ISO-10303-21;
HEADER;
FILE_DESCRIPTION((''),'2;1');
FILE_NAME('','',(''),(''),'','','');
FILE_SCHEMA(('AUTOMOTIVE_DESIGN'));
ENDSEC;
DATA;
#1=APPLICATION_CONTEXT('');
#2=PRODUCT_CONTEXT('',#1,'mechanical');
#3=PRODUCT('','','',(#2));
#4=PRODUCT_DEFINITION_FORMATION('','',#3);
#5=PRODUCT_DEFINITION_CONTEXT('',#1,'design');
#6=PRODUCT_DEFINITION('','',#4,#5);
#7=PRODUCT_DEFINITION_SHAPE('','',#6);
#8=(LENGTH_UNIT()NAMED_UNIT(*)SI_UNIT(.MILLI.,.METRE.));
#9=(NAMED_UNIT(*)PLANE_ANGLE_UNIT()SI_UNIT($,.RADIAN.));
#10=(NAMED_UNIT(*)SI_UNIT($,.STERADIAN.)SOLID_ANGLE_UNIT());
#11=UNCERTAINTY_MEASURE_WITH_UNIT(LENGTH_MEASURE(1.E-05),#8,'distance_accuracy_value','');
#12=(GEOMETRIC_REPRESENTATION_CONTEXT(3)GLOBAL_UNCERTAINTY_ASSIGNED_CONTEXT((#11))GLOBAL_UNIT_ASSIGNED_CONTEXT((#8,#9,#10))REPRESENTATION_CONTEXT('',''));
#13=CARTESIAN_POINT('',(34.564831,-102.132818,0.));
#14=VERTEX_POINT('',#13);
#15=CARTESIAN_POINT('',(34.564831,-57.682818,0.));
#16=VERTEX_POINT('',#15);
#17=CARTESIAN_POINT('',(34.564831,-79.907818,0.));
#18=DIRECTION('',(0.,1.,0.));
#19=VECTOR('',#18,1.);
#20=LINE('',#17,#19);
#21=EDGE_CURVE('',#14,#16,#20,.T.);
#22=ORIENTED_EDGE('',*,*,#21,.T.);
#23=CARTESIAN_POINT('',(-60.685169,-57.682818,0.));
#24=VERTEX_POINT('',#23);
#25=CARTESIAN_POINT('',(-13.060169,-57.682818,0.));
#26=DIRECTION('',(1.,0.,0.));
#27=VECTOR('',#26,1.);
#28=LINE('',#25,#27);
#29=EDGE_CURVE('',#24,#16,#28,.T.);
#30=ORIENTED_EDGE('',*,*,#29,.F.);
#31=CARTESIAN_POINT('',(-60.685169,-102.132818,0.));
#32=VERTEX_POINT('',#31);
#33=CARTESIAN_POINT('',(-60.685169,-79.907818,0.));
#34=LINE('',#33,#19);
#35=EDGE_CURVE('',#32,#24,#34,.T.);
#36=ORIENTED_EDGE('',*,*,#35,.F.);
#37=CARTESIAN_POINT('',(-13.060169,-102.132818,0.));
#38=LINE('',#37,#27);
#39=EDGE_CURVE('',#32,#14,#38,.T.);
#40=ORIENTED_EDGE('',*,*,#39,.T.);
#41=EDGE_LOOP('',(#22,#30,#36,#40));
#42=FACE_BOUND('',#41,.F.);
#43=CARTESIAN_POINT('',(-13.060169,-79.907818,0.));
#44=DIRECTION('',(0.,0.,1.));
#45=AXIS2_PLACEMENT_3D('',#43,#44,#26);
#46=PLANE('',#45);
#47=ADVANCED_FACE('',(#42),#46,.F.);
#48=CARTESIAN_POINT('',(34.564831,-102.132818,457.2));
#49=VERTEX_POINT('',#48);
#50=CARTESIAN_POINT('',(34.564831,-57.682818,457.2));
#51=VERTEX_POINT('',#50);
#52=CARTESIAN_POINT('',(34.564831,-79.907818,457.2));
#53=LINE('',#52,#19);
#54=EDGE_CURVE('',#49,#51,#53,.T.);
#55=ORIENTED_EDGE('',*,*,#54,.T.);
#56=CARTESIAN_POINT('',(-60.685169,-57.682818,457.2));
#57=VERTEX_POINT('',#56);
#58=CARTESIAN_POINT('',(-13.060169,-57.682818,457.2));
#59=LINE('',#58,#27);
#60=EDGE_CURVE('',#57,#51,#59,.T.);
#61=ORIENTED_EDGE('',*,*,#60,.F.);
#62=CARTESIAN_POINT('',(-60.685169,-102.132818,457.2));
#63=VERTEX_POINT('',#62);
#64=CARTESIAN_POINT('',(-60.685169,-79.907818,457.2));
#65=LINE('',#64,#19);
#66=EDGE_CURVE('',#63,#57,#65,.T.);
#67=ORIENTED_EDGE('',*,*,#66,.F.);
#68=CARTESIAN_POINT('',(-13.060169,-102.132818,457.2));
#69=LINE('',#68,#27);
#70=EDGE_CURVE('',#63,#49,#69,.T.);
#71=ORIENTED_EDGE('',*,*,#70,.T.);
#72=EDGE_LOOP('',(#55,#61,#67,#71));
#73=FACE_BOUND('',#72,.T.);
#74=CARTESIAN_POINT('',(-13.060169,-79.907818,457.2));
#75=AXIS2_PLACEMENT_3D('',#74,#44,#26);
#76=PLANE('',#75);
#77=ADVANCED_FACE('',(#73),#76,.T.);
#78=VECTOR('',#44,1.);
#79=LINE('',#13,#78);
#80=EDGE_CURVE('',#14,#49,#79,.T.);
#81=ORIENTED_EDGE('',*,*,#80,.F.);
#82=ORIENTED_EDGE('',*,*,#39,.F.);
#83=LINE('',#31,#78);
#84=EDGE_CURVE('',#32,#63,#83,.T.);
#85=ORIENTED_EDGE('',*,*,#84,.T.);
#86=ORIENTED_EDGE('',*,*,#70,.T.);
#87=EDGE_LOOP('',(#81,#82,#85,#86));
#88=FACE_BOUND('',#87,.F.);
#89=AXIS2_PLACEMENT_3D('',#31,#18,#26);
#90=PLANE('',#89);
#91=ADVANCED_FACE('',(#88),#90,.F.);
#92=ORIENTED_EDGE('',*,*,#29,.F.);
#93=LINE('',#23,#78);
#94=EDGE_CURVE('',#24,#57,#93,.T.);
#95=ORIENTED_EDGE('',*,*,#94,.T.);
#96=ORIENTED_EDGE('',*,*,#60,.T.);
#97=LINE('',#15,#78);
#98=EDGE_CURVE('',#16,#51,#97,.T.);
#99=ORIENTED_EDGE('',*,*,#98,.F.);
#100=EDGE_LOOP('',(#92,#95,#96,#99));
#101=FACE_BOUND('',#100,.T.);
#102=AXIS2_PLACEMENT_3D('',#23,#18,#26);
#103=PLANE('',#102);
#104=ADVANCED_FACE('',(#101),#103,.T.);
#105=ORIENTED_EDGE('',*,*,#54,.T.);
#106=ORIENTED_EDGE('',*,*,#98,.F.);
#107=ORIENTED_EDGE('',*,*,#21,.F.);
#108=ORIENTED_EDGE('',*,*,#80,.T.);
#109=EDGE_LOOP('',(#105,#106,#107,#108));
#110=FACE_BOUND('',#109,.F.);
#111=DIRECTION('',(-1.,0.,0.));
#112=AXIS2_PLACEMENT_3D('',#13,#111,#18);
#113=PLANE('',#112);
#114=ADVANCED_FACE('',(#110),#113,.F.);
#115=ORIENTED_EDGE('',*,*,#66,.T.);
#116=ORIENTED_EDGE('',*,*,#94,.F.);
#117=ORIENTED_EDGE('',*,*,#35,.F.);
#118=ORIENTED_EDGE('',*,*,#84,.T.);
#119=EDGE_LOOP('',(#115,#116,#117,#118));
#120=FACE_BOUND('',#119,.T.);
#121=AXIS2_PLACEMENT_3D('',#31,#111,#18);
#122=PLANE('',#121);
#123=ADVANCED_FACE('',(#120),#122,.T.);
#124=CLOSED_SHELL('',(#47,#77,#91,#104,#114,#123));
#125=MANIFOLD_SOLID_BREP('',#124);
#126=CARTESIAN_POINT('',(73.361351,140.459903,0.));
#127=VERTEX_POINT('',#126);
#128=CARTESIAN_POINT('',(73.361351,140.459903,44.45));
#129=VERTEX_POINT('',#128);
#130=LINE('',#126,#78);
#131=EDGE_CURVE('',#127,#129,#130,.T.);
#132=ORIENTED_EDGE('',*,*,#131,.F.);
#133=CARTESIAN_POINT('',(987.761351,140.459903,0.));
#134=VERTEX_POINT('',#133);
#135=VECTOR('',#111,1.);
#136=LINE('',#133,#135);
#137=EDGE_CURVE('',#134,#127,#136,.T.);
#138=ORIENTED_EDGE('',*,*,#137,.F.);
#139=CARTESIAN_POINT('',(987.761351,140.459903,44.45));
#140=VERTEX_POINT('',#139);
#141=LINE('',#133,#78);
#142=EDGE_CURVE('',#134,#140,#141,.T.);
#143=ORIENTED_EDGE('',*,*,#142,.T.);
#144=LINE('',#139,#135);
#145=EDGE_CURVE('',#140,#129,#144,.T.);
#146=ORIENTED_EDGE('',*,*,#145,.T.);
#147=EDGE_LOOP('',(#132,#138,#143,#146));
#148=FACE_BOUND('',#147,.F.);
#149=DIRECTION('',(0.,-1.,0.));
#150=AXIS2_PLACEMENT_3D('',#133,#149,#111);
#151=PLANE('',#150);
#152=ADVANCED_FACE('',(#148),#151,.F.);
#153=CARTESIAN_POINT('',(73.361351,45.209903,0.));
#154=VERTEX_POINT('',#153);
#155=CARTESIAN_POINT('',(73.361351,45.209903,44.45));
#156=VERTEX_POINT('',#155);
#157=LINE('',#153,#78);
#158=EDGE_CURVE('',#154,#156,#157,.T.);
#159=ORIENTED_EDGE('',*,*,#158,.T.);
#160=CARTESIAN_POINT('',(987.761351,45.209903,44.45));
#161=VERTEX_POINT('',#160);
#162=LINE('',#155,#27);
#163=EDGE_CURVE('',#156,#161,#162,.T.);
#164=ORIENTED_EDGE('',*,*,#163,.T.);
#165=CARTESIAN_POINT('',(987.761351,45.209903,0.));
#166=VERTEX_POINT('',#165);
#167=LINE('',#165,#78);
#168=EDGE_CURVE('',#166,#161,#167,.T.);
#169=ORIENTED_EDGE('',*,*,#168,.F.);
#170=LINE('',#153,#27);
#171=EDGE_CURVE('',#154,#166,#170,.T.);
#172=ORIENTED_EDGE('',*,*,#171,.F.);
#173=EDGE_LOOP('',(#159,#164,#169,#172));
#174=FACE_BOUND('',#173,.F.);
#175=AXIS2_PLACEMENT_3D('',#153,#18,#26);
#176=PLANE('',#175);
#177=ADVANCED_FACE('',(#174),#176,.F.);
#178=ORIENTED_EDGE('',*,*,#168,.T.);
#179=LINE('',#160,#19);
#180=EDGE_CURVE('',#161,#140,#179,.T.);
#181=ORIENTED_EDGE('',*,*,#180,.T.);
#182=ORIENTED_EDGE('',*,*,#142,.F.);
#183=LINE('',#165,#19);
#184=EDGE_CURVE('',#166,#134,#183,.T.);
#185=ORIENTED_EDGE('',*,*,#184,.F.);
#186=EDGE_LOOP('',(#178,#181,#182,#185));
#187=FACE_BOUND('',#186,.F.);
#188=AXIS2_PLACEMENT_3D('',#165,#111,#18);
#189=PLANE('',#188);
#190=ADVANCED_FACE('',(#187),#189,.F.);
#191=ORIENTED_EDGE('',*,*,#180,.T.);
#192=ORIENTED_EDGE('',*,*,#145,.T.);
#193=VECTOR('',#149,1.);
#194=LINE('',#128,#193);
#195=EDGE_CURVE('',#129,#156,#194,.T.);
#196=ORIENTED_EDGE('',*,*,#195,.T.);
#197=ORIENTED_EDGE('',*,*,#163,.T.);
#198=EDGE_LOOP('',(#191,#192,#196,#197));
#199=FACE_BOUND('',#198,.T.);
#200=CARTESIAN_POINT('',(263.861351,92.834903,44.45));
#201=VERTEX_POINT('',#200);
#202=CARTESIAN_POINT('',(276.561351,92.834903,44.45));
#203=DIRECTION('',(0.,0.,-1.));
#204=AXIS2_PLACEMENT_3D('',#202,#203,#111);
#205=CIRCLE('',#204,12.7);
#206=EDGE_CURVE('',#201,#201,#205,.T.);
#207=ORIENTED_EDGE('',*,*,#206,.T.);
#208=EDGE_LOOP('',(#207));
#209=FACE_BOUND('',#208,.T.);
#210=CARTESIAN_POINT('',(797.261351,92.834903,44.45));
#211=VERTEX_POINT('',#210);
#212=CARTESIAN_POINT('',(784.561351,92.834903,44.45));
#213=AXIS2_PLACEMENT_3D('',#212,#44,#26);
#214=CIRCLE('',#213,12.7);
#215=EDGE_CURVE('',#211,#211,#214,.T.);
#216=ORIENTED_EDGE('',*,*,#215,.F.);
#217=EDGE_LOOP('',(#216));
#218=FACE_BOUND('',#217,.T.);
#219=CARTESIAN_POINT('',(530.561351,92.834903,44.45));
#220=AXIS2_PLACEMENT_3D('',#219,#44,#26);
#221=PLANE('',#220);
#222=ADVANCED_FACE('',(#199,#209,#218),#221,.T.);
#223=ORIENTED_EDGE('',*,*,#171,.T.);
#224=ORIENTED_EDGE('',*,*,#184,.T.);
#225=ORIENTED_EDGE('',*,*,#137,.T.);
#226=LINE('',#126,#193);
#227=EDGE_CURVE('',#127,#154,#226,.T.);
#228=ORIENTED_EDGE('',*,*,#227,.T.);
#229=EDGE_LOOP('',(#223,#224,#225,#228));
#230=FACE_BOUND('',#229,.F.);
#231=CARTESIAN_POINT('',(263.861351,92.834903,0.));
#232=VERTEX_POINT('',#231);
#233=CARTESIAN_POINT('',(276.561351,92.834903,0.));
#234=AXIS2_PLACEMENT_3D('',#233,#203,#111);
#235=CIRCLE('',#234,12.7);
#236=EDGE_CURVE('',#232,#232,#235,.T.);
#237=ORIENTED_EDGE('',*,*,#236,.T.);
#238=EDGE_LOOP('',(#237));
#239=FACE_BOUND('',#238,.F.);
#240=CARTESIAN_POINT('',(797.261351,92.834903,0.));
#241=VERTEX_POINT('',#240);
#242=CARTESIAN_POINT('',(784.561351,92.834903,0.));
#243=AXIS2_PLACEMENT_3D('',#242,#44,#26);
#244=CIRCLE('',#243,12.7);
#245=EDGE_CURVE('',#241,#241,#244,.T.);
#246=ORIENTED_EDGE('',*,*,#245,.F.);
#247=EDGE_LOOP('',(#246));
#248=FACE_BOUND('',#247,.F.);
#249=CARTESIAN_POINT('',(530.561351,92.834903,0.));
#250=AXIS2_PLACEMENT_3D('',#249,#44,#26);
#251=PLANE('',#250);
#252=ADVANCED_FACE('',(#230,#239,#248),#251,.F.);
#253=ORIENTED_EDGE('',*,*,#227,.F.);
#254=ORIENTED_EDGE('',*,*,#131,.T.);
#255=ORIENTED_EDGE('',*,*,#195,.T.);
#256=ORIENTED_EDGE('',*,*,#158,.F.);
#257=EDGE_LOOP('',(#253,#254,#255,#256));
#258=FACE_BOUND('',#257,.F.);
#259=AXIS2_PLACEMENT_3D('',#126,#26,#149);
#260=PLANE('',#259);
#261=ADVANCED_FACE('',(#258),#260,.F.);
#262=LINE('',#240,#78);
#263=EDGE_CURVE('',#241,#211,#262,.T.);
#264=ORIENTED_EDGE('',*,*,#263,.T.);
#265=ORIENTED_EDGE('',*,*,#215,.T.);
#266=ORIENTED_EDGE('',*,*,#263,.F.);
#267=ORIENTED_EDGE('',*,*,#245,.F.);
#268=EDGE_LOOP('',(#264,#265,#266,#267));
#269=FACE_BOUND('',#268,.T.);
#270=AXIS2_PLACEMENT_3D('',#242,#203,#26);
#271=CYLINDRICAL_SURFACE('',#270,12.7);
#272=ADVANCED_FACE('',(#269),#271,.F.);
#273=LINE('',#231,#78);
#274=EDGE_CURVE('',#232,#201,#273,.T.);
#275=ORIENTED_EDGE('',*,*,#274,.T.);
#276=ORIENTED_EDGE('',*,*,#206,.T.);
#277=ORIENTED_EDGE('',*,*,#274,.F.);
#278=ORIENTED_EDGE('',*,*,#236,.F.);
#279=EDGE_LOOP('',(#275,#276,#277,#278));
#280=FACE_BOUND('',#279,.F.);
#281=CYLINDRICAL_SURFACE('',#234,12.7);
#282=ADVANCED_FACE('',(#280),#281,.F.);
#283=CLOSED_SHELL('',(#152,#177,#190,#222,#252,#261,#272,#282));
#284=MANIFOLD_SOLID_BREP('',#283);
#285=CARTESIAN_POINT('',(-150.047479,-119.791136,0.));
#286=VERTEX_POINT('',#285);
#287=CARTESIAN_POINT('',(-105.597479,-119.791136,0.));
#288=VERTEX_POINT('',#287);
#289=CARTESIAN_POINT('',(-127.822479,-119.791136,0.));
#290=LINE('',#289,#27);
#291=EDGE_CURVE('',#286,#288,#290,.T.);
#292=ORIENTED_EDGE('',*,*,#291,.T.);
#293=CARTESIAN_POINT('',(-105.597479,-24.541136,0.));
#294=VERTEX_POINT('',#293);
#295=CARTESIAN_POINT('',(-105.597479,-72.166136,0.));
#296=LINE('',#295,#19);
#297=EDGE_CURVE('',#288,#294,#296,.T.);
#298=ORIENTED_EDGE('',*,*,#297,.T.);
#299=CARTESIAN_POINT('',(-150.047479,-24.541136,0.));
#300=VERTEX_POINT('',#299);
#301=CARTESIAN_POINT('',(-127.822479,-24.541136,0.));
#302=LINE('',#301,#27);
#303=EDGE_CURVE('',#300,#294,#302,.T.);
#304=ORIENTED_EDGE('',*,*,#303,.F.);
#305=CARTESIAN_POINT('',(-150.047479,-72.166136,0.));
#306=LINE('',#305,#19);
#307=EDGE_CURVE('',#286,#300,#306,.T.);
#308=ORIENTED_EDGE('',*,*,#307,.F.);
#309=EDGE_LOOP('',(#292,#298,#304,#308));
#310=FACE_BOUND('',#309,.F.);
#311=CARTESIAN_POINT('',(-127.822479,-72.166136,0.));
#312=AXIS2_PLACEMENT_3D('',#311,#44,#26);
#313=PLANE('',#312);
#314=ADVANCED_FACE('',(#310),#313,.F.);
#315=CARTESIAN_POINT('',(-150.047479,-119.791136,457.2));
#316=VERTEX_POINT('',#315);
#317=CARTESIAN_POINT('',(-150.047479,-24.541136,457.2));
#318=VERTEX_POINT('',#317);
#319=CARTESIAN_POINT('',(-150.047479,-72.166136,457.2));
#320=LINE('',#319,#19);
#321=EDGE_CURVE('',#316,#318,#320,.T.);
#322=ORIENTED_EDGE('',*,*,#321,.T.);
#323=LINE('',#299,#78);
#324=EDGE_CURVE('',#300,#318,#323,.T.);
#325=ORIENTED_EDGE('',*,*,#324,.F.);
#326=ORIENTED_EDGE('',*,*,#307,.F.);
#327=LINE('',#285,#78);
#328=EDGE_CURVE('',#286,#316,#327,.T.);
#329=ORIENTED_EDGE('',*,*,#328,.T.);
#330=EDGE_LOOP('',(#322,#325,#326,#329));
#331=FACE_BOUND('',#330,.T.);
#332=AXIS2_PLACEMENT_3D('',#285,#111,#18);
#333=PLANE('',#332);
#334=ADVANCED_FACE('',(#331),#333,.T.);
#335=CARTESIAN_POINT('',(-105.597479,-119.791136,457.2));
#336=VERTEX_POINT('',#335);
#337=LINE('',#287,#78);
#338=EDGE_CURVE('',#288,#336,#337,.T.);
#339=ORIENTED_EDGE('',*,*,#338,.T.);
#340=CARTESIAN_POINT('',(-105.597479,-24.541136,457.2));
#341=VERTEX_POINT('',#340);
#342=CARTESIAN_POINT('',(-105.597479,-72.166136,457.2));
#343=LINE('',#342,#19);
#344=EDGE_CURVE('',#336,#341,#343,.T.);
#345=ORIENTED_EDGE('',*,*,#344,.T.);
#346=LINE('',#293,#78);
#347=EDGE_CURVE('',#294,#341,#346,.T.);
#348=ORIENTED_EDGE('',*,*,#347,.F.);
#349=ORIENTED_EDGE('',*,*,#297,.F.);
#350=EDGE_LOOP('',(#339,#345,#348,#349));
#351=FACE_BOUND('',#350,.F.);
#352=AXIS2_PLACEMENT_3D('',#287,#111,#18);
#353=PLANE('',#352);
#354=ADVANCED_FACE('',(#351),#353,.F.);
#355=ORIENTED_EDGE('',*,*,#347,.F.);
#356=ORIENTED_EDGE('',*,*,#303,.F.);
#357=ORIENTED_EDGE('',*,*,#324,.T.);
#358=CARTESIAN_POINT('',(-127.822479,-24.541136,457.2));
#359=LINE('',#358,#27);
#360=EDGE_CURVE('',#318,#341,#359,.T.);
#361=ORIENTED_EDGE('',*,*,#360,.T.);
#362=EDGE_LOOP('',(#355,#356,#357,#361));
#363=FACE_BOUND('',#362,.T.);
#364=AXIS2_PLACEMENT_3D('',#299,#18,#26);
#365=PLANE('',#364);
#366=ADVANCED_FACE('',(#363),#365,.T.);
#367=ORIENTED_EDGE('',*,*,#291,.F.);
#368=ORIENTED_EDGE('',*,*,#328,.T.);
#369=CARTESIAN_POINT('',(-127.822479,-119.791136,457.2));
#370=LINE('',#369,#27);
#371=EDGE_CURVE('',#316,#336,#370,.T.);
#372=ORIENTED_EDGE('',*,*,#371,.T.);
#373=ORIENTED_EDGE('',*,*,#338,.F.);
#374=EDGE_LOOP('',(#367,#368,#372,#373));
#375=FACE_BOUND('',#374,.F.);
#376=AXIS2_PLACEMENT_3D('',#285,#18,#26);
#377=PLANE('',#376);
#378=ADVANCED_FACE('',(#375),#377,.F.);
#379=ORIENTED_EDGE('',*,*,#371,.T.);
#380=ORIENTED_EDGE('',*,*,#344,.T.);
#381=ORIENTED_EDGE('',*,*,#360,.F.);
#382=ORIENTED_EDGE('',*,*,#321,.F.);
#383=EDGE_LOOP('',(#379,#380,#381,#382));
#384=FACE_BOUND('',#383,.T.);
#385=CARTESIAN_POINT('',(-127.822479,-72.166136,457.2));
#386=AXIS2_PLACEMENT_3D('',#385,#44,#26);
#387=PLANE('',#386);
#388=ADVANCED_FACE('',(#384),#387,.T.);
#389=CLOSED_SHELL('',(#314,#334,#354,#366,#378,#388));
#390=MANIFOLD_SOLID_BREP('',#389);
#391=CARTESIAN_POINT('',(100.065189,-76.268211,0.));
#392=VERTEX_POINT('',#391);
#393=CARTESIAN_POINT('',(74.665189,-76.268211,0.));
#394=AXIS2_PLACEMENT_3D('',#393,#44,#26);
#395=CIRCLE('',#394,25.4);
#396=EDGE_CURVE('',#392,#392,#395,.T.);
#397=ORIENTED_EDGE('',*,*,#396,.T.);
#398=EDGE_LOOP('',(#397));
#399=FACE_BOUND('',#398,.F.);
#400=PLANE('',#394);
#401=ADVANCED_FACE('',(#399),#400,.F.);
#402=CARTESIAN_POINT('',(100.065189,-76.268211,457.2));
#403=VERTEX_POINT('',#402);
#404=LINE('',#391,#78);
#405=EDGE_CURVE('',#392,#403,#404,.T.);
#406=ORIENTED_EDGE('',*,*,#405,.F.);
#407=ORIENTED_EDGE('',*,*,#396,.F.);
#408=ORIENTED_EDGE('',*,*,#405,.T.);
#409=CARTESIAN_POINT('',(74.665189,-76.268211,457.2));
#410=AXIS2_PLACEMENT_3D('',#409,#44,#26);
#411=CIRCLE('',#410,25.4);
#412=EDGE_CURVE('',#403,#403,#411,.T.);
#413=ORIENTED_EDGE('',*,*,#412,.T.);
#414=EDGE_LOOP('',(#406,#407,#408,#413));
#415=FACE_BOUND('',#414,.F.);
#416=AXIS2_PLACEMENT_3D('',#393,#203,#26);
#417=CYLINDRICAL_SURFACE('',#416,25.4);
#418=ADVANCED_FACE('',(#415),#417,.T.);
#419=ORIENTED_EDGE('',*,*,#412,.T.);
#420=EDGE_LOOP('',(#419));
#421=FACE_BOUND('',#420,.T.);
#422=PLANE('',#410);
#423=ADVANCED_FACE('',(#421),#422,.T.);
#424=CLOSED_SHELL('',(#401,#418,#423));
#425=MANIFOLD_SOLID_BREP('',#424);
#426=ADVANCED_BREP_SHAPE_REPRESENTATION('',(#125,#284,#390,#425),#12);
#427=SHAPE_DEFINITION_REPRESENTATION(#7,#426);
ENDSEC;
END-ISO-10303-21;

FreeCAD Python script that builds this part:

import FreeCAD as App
import Part
import Sketcher
Q = App.Units.Quantity

doc = App.newDocument("Part")
params = doc.addObject("Spreadsheet::Sheet", "Params")
for row, (alias, value) in enumerate([
    ("sketch1_diameter", "1 in"),
    ("sketch1_width", "36 in"),
    ("sketch1_height", "3.75 in"),
    ("pad1_length", "1.75 in"),
    ("sketch2_width", "3.75 in"),
    ("sketch2_height", "1.75 in"),
    ("pad2_length", "18 in"),
    ("sketch3_width", "1.75 in"),
    ("sketch3_height", "3.75 in"),
    ("pad3_length", "18 in"),
    ("sketch4_diameter", "2 in"),
    ("pad4_length", "18 in"),
], start=1):
    params.set(f"A{row}", alias)
    params.set(f"B{row}", "=" + value)
    params.setAlias(f"B{row}", alias)

body = doc.addObject("PartDesign::Body", "Body")

# Sketch on XY plane
sketch1 = doc.addObject("Sketcher::SketchObject", "Sketch")
body.addObject(sketch1)
sketch1.AttachmentSupport = (doc.XY_Plane, [""])
sketch1.MapMode = "FlatFace"
sketch1.addGeometry([
    Part.LineSegment(App.Vector(988, 140, 0), App.Vector(73, 140, 0)),  # 0
    Part.LineSegment(App.Vector(73, 140, 0), App.Vector(73, 45, 0)),  # 1
    Part.LineSegment(App.Vector(73, 45, 0), App.Vector(988, 45, 0)),  # 2
    Part.LineSegment(App.Vector(988, 45, 0), App.Vector(988, 140, 0)),  # 3
    Part.Circle(App.Vector(277, 93, 0), App.Vector(0, 0, 1), 13),  # 4
    Part.Circle(App.Vector(785, 93, 0), App.Vector(0, 0, 1), 13),  # 5
], False)
sketch1.addConstraint([
    Sketcher.Constraint("Coincident", 0, 2, 1, 1),
    Sketcher.Constraint("Coincident", 1, 2, 2, 1),
    Sketcher.Constraint("Coincident", 2, 2, 3, 1),
    Sketcher.Constraint("Coincident", 3, 2, 0, 1),
    Sketcher.Constraint("Horizontal", 0),
    Sketcher.Constraint("Vertical", 1),
    Sketcher.Constraint("Horizontal", 2),
    Sketcher.Constraint("Vertical", 3),
    Sketcher.Constraint("Equal", 4, 5),
    Sketcher.Constraint("Horizontal", 4, 3, 5, 3),
    Sketcher.Constraint("Diameter", 4, Q("1 in")),
    Sketcher.Constraint("DistanceX", 0, 2, 0, 1, Q("36 in")),
    Sketcher.Constraint("DistanceX", 4, 3, 5, 3, Q("20 in")),
    Sketcher.Constraint("DistanceX", 0, 2, 4, 3, Q("8 in")),
    Sketcher.Constraint("DistanceY", 1, 2, 1, 1, Q("3.75 in")),
    Sketcher.Constraint("DistanceY", 4, 3, 0, 2, Q("1.875 in")),
    Sketcher.Constraint("DistanceX", -1, 1, 4, 3, 276.561351),
    Sketcher.Constraint("DistanceY", -1, 1, 4, 3, 92.834903),
])
sketch1.setExpression("Constraints[10]", "Params.sketch1_diameter")
sketch1.setExpression("Constraints[11]", "Params.sketch1_width")
sketch1.setExpression("Constraints[14]", "Params.sketch1_height")
pad1 = doc.addObject("PartDesign::Pad", "Pad")
body.addObject(pad1)
pad1.Profile = sketch1
pad1.setExpression("Length", "Params.pad1_length")
body2 = doc.addObject("PartDesign::Body", "Body001")

# Sketch on XY plane
sketch2 = doc.addObject("Sketcher::SketchObject", "Sketch001")
body2.addObject(sketch2)
sketch2.AttachmentSupport = (doc.getObject("XY_Plane001"), [""])
sketch2.MapMode = "FlatFace"
sketch2.addGeometry([
    Part.LineSegment(App.Vector(-61, -58, 0), App.Vector(-61, -102, 0)),
    Part.LineSegment(App.Vector(-61, -102, 0), App.Vector(35, -102, 0)),
    Part.LineSegment(App.Vector(35, -102, 0), App.Vector(35, -58, 0)),
    Part.LineSegment(App.Vector(35, -58, 0), App.Vector(-61, -58, 0)),
], False)
sketch2.addConstraint([
    Sketcher.Constraint("Coincident", 0, 2, 1, 1),
    Sketcher.Constraint("Coincident", 1, 2, 2, 1),
    Sketcher.Constraint("Coincident", 2, 2, 3, 1),
    Sketcher.Constraint("Coincident", 3, 2, 0, 1),
    Sketcher.Constraint("Vertical", 0),
    Sketcher.Constraint("Horizontal", 1),
    Sketcher.Constraint("Vertical", 2),
    Sketcher.Constraint("Horizontal", 3),
    Sketcher.Constraint("DistanceX", 1, 1, 1, 2, Q("3.75 in")),
    Sketcher.Constraint("DistanceY", 0, 2, 0, 1, Q("1.75 in")),
    Sketcher.Constraint("DistanceX", 0, 2, -1, 1, 60.685169),
    Sketcher.Constraint("DistanceY", 0, 2, -1, 1, 102.132818),
])
sketch2.setExpression("Constraints[8]", "Params.sketch2_width")
sketch2.setExpression("Constraints[9]", "Params.sketch2_height")
pad2 = doc.addObject("PartDesign::Pad", "Pad001")
body2.addObject(pad2)
pad2.Profile = sketch2
pad2.setExpression("Length", "Params.pad2_length")
body3 = doc.addObject("PartDesign::Body", "Body002")

# Sketch on XY plane
sketch3 = doc.addObject("Sketcher::SketchObject", "Sketch002")
body3.addObject(sketch3)
sketch3.AttachmentSupport = (doc.getObject("XY_Plane002"), [""])
sketch3.MapMode = "FlatFace"
sketch3.addGeometry([
    Part.LineSegment(App.Vector(-150, -25, 0), App.Vector(-150, -120, 0)),
    Part.LineSegment(App.Vector(-150, -120, 0), App.Vector(-106, -120, 0)),
    Part.LineSegment(App.Vector(-106, -120, 0), App.Vector(-106, -25, 0)),
    Part.LineSegment(App.Vector(-106, -25, 0), App.Vector(-150, -25, 0)),
], False)
sketch3.addConstraint([
    Sketcher.Constraint("Coincident", 0, 2, 1, 1),
    Sketcher.Constraint("Coincident", 1, 2, 2, 1),
    Sketcher.Constraint("Coincident", 2, 2, 3, 1),
    Sketcher.Constraint("Coincident", 3, 2, 0, 1),
    Sketcher.Constraint("Vertical", 0),
    Sketcher.Constraint("Horizontal", 1),
    Sketcher.Constraint("Vertical", 2),
    Sketcher.Constraint("Horizontal", 3),
    Sketcher.Constraint("DistanceX", 1, 1, 1, 2, Q("1.75 in")),
    Sketcher.Constraint("DistanceY", 0, 2, 0, 1, Q("3.75 in")),
    Sketcher.Constraint("DistanceX", 0, 2, -1, 1, 150.047479),
    Sketcher.Constraint("DistanceY", 0, 2, -1, 1, 119.791136),
])
sketch3.setExpression("Constraints[8]", "Params.sketch3_width")
sketch3.setExpression("Constraints[9]", "Params.sketch3_height")
pad3 = doc.addObject("PartDesign::Pad", "Pad002")
body3.addObject(pad3)
pad3.Profile = sketch3
pad3.setExpression("Length", "Params.pad3_length")
body4 = doc.addObject("PartDesign::Body", "Body003")

# Sketch on XY plane
sketch4 = doc.addObject("Sketcher::SketchObject", "Sketch003")
body4.addObject(sketch4)
sketch4.AttachmentSupport = (doc.getObject("XY_Plane003"), [""])
sketch4.MapMode = "FlatFace"
sketch4.addGeometry(Part.Circle(App.Vector(75, -76, 0), App.Vector(0, 0, 1), 25), False)
sketch4.addConstraint([
    Sketcher.Constraint("Diameter", 0, Q("2 in")),
    Sketcher.Constraint("DistanceX", -1, 1, 0, 3, 74.665189),
    Sketcher.Constraint("DistanceY", 0, 3, -1, 1, 76.268211),
])
sketch4.setExpression("Constraints[0]", "Params.sketch4_diameter")
pad4 = doc.addObject("PartDesign::Pad", "Pad003")
body4.addObject(pad4)
pad4.Profile = sketch4
pad4.setExpression("Length", "Params.pad4_length")

doc.recompute()
